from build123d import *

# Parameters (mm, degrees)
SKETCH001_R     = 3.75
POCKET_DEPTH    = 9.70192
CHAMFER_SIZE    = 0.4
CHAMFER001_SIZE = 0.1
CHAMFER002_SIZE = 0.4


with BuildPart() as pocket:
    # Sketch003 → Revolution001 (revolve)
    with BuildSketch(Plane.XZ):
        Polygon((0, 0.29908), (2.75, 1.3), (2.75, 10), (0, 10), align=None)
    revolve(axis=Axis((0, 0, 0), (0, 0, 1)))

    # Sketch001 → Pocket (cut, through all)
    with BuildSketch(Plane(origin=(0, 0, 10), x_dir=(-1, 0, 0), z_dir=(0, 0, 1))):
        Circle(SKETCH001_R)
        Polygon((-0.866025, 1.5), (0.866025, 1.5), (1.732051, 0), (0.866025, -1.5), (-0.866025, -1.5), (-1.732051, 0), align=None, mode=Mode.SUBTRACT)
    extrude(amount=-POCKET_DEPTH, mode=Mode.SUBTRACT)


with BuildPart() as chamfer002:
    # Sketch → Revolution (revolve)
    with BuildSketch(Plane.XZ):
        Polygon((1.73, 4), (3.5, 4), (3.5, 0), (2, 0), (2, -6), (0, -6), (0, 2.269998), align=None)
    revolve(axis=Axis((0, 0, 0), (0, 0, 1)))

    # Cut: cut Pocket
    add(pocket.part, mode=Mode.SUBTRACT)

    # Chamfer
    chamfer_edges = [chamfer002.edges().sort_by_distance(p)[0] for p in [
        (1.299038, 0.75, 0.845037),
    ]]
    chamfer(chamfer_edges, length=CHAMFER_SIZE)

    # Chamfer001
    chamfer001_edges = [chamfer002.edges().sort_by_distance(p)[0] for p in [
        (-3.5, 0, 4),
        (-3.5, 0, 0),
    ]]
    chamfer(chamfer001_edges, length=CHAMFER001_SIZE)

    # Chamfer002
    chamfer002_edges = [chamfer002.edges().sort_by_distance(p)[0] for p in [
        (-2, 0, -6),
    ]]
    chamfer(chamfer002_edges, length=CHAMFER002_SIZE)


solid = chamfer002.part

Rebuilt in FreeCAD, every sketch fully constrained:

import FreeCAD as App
import Part
import Sketcher
Q = App.Units.Quantity


def edges_at(feature, points):
    """Names of the edges that pass closest to the given points."""
    edges = feature.Shape.Edges
    near = lambda p: min(range(len(edges)), key=lambda i: edges[i].distToShape(Part.Vertex(*p))[0])
    return sorted({f"Edge{near(p) + 1}" for p in points})

doc = App.newDocument("Part")
params = doc.addObject("Spreadsheet::Sheet", "Params")
for row, (alias, value) in enumerate([
    ("sketch1_height", "8.7 mm"),
    ("sketch1_width", "2.75 mm"),
    ("revolution_angle", "360 deg"),
    ("sketch2_diameter", "7.5 mm"),
    ("sketch3_width", "2 mm"),
    ("sketch3_height", "6 mm"),
    ("sketch3_height2", "4 mm"),
    ("sketch3_width2", "1.5 mm"),
    ("sketch3_width3", "1.77 mm"),
    ("revolution2_angle", "360 deg"),
    ("chamfer_size", "0.4 mm"),
    ("chamfer2_size", "0.1 mm"),
    ("chamfer3_size", "0.4 mm"),
], start=1):
    params.set(f"A{row}", alias)
    params.set(f"B{row}", "=" + value)
    params.setAlias(f"B{row}", alias)

body = doc.addObject("PartDesign::Body", "Body")

# Sketch on XZ plane
sketch1 = doc.addObject("Sketcher::SketchObject", "Sketch")
body.addObject(sketch1)
sketch1.AttachmentSupport = (doc.XZ_Plane, [""])
sketch1.MapMode = "FlatFace"
sketch1.addGeometry([
    Part.LineSegment(App.Vector(0, 0.29908, 0), App.Vector(2.75, 1.3, 0)),
    Part.LineSegment(App.Vector(2.75, 1.3, 0), App.Vector(2.75, 10, 0)),
    Part.LineSegment(App.Vector(2.75, 10, 0), App.Vector(0, 10, 0)),
    Part.LineSegment(App.Vector(0, 10, 0), App.Vector(0, 0.29908, 0)),
], False)
sketch1.addConstraint([
    Sketcher.Constraint("Coincident", 0, 2, 1, 1),
    Sketcher.Constraint("Coincident", 1, 2, 2, 1),
    Sketcher.Constraint("Coincident", 2, 2, 3, 1),
    Sketcher.Constraint("Coincident", 3, 2, 0, 1),
    Sketcher.Constraint("Vertical", 1),
    Sketcher.Constraint("Horizontal", 2),
    Sketcher.Constraint("Vertical", 3),
    Sketcher.Constraint("PointOnObject", 2, 2, -2),
    Sketcher.Constraint("DistanceY", 1, 1, 1, 2, Q("8.7 mm")),
    Sketcher.Constraint("DistanceY", -1, 1, 1, 2, Q("10 mm")),
    Sketcher.Constraint("DistanceX", 2, 2, 2, 1, Q("2.75 mm")),
    Sketcher.Constraint("DistanceY", 3, 2, 3, 1, Q("9.70092 mm")),
])
sketch1.setExpression("Constraints[8]", "Params.sketch1_height")
sketch1.setExpression("Constraints[10]", "Params.sketch1_width")
revolution = doc.addObject("PartDesign::Revolution", "Revolution")
body.addObject(revolution)
revolution.Profile = sketch1
revolution.ReferenceAxis = (sketch1, ["V_Axis"])
revolution.setExpression("Angle", "Params.revolution_angle")

# Sketch on XY plane
sketch2 = doc.addObject("Sketcher::SketchObject", "Sketch001")
body.addObject(sketch2)
sketch2.AttachmentSupport = (doc.XY_Plane, [""])
sketch2.MapMode = "FlatFace"
sketch2.AttachmentOffset = App.Placement(App.Vector(0, 0, 10), App.Rotation())
sketch2.addGeometry([
    Part.Circle(App.Vector(0, 0, 0), App.Vector(0, 0, 1), 3.75),  # 0
    Part.LineSegment(App.Vector(1.732051, 0, 0), App.Vector(0.866025, -1.5, 0)),  # 1
    Part.LineSegment(App.Vector(0.866025, -1.5, 0), App.Vector(-0.866025, -1.5, 0)),  # 2
    Part.LineSegment(App.Vector(-0.866025, -1.5, 0), App.Vector(-1.732051, 0, 0)),  # 3
    Part.LineSegment(App.Vector(-1.732051, 0, 0), App.Vector(-0.866025, 1.5, 0)),  # 4
    Part.LineSegment(App.Vector(-0.866025, 1.5, 0), App.Vector(0.866025, 1.5, 0)),  # 5
    Part.LineSegment(App.Vector(0.866025, 1.5, 0), App.Vector(1.732051, 0, 0)),  # 6
], False)
sketch2.addConstraint([
    Sketcher.Constraint("Coincident", 1, 2, 2, 1),
    Sketcher.Constraint("Coincident", 2, 2, 3, 1),
    Sketcher.Constraint("Coincident", 3, 2, 4, 1),
    Sketcher.Constraint("Coincident", 4, 2, 5, 1),
    Sketcher.Constraint("Coincident", 5, 2, 6, 1),
    Sketcher.Constraint("Coincident", 6, 2, 1, 1),
    Sketcher.Constraint("Horizontal", 2),
    Sketcher.Constraint("Horizontal", 5),
    Sketcher.Constraint("Coincident", 0, 3, -1, 1),
    Sketcher.Constraint("Symmetric", 1, 2, 4, 2, -1, 1),
    Sketcher.Constraint("Symmetric", 3, 2, 6, 2, -1, 1),
    Sketcher.Constraint("PointOnObject", 3, 2, -1),
    Sketcher.Constraint("Parallel", 3, 6),
    Sketcher.Constraint("Vertical", 2, 2, 4, 2),
    Sketcher.Constraint("Diameter", 0, Q("7.5 mm")),
    Sketcher.Constraint("Angle", 1, Q("-120.000017 deg")),
    Sketcher.Constraint("DistanceY", 2, 2, 4, 2, Q("3 mm")),
    Sketcher.Constraint("DistanceX", 2, 2, 2, 1, Q("1.73205 mm")),
])
sketch2.setExpression("Constraints[14]", "Params.sketch2_diameter")
pocket1 = doc.addObject("PartDesign::Pocket", "Pocket")
body.addObject(pocket1)
pocket1.Profile = sketch2
pocket1.Type = "ThroughAll"
body2 = doc.addObject("PartDesign::Body", "Body001")

# Sketch on XZ plane
sketch3 = doc.addObject("Sketcher::SketchObject", "Sketch002")
body2.addObject(sketch3)
sketch3.AttachmentSupport = (doc.getObject("XZ_Plane001"), [""])
sketch3.MapMode = "FlatFace"
sketch3.addGeometry([
    Part.LineSegment(App.Vector(3.5, 4, 0), App.Vector(1.73, 4, 0)),  # 0
    Part.LineSegment(App.Vector(1.73, 4, 0), App.Vector(0, 2.269998, 0)),  # 1
    Part.LineSegment(App.Vector(0, 2.269998, 0), App.Vector(0, -6, 0)),  # 2
    Part.LineSegment(App.Vector(0, -6, 0), App.Vector(2, -6, 0)),  # 3
    Part.LineSegment(App.Vector(2, -6, 0), App.Vector(2, 0, 0)),  # 4
    Part.LineSegment(App.Vector(2, 0, 0), App.Vector(3.5, 0, 0)),  # 5
    Part.LineSegment(App.Vector(3.5, 0, 0), App.Vector(3.5, 4, 0)),  # 6
], False)
sketch3.addConstraint([
    Sketcher.Constraint("Coincident", 0, 2, 1, 1),
    Sketcher.Constraint("Coincident", 1, 2, 2, 1),
    Sketcher.Constraint("Coincident", 2, 2, 3, 1),
    Sketcher.Constraint("Coincident", 3, 2, 4, 1),
    Sketcher.Constraint("Coincident", 4, 2, 5, 1),
    Sketcher.Constraint("Coincident", 5, 2, 6, 1),
    Sketcher.Constraint("Coincident", 6, 2, 0, 1),
    Sketcher.Constraint("Horizontal", 0),
    Sketcher.Constraint("Vertical", 2),
    Sketcher.Constraint("Horizontal", 3),
    Sketcher.Constraint("Vertical", 4),
    Sketcher.Constraint("Horizontal", 5),
    Sketcher.Constraint("Vertical", 6),
    Sketcher.Constraint("PointOnObject", 1, 2, -2),
    Sketcher.Constraint("PointOnObject", 4, 2, -1),
    Sketcher.Constraint("DistanceX", 3, 1, 3, 2, Q("2 mm")),
    Sketcher.Constraint("DistanceY", 4, 1, 4, 2, Q("6 mm")),
    Sketcher.Constraint("DistanceY", 6, 1, 6, 2, Q("4 mm")),
    Sketcher.Constraint("DistanceX", 5, 1, 5, 2, Q("1.5 mm")),
    Sketcher.Constraint("DistanceX", 0, 2, 0, 1, Q("1.77 mm")),
    Sketcher.Constraint("DistanceY", 2, 2, 2, 1, Q("8.269998 mm")),
])
sketch3.setExpression("Constraints[15]", "Params.sketch3_width")
sketch3.setExpression("Constraints[16]", "Params.sketch3_height")
sketch3.setExpression("Constraints[17]", "Params.sketch3_height2")
sketch3.setExpression("Constraints[18]", "Params.sketch3_width2")
sketch3.setExpression("Constraints[19]", "Params.sketch3_width3")
revolution2 = doc.addObject("PartDesign::Revolution", "Revolution001")
body2.addObject(revolution2)
revolution2.Profile = sketch3
revolution2.ReferenceAxis = (sketch3, ["V_Axis"])
revolution2.setExpression("Angle", "Params.revolution2_angle")
doc.recompute()

boolean = doc.addObject("PartDesign::Boolean", "Boolean")
body2.addObject(boolean)
boolean.Type = "Cut"
boolean.addObjects([body])
doc.recompute()

chamfer = doc.addObject("PartDesign::Chamfer", "Chamfer")
body2.addObject(chamfer)
chamfer.Base = (boolean, edges_at(boolean, [(1.299, 0.75, 0.845)]))
chamfer.setExpression("Size", "Params.chamfer_size")
doc.recompute()

chamfer2 = doc.addObject("PartDesign::Chamfer", "Chamfer001")
body2.addObject(chamfer2)
chamfer2.Base = (chamfer, edges_at(chamfer, [(-3.5, 0, 4), (-3.5, 0, 0)]))
chamfer2.setExpression("Size", "Params.chamfer2_size")
doc.recompute()

chamfer3 = doc.addObject("PartDesign::Chamfer", "Chamfer002")
body2.addObject(chamfer3)
chamfer3.Base = (chamfer2, edges_at(chamfer2, [(-2, 0, -6)]))
chamfer3.setExpression("Size", "Params.chamfer3_size")

doc.recompute()
